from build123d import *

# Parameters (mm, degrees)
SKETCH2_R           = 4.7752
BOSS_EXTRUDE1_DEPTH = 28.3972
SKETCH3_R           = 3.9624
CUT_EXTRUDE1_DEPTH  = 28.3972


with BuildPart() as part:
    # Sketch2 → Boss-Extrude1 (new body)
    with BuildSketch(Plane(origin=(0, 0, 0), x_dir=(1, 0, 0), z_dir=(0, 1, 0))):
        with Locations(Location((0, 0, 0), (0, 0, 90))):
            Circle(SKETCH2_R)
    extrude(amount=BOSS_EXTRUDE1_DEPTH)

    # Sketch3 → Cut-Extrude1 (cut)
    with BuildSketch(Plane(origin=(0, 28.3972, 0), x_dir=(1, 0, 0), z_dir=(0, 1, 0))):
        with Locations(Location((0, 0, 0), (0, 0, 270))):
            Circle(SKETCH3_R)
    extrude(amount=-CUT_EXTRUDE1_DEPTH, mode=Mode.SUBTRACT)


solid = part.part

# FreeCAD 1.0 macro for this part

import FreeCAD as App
import Part
import Sketcher
Q = App.Units.Quantity

doc = App.newDocument("Part")
body = doc.addObject("PartDesign::Body", "Body")

# Sketch on XZ plane
sketch1 = body.newObject("Sketcher::SketchObject", "Sketch")
sketch1.AttachmentSupport = (doc.getObject("XZ_Plane"), [""])
sketch1.MapMode = "FlatFace"
sketch1.addGeometry(Part.Circle(App.Vector(0, 0, 0), App.Vector(0, 0, 1), 4.7752), False)
sketch1.addConstraint(Sketcher.Constraint("Coincident", 0, 3, -1, 1))
sketch1.addConstraint(Sketcher.Constraint("Diameter", 0, Q("0.376 in")))
pad1 = body.newObject("PartDesign::Pad", "Pad")
pad1.Profile = sketch1
pad1.Length = Q("1.118 in")
pad1.Reversed = True

# Sketch on XZ plane
sketch2 = body.newObject("Sketcher::SketchObject", "Sketch001")
sketch2.AttachmentSupport = (doc.getObject("XZ_Plane"), [""])
sketch2.MapMode = "FlatFace"
sketch2.AttachmentOffset = App.Placement(App.Vector(0, 0, -1.118 * 25.4), App.Rotation())
sketch2.addGeometry(Part.Circle(App.Vector(0, 0, 0), App.Vector(0, 0, 1), 3.9624), False)
sketch2.addConstraint(Sketcher.Constraint("Coincident", 0, 3, -1, 1))
sketch2.addConstraint(Sketcher.Constraint("Diameter", 0, Q("0.312 in")))
pocket1 = body.newObject("PartDesign::Pocket", "Pocket")
pocket1.Profile = sketch2
pocket1.Length = Q("1.118 in")
pocket1.Reversed = True

doc.recompute()
